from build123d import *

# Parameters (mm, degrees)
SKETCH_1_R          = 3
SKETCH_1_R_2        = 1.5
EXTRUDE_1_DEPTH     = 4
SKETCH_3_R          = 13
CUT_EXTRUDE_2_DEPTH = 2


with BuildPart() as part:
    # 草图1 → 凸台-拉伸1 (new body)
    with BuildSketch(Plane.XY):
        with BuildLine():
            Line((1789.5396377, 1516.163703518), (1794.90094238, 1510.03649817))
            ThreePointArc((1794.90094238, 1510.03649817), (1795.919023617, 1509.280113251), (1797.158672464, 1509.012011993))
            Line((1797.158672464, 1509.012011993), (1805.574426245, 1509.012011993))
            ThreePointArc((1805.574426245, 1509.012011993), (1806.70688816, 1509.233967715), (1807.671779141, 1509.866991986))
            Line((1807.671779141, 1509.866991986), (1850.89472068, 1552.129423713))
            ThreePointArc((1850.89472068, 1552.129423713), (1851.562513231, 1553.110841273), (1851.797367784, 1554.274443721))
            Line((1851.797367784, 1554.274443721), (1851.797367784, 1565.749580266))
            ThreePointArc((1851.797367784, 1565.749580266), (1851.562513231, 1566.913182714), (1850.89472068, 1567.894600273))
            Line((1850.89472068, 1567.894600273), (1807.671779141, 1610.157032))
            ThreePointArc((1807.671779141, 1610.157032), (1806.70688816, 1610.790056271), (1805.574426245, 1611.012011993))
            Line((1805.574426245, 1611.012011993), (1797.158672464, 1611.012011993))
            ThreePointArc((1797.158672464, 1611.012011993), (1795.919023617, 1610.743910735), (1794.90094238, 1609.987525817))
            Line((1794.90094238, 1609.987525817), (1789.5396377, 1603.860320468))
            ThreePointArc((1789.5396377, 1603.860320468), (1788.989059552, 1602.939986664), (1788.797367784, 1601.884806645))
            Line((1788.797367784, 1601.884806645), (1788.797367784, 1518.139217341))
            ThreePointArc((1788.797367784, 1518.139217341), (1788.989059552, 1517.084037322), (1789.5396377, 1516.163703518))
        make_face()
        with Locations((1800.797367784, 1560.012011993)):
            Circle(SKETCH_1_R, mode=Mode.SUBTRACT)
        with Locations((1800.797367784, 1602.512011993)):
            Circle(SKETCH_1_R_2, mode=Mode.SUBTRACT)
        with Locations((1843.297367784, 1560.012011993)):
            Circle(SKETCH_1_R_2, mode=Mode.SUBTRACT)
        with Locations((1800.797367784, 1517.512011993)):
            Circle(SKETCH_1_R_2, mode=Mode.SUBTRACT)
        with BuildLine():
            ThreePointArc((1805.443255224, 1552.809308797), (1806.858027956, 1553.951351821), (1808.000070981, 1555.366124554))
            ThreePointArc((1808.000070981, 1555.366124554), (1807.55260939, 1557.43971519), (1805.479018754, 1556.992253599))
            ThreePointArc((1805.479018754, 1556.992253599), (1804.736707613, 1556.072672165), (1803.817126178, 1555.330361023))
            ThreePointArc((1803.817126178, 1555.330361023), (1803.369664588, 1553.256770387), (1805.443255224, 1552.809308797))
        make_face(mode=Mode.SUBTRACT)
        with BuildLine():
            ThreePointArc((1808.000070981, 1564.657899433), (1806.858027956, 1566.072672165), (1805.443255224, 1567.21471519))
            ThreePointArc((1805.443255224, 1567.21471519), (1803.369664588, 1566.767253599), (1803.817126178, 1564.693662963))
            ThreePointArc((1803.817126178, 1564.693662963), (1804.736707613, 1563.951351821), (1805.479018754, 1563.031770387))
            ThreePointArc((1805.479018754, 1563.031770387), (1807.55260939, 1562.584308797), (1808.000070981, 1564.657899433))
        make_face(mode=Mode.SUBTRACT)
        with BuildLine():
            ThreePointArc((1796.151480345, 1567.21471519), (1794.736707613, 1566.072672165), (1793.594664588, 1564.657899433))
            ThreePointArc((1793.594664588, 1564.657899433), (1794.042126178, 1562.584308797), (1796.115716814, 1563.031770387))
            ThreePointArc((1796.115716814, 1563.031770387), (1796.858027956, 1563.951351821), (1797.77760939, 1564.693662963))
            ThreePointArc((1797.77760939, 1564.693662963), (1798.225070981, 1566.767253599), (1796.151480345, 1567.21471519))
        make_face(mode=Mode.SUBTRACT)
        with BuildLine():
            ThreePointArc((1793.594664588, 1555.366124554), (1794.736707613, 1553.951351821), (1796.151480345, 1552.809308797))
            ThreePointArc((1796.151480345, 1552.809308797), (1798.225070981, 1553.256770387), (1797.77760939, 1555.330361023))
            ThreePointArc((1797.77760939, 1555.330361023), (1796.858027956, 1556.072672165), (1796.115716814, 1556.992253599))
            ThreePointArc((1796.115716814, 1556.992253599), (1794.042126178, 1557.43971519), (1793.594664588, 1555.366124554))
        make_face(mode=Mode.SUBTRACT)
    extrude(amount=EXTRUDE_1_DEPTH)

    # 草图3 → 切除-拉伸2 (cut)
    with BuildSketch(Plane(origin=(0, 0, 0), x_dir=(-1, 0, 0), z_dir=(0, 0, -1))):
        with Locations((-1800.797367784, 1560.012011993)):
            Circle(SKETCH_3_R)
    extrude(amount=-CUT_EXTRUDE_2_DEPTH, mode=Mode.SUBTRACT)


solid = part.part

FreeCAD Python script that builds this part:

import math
import FreeCAD as App
import Part
import Sketcher

V = App.Vector

doc = App.newDocument("Part")
body = doc.addObject("PartDesign::Body", "Body")

# Sketch on XY plane
sketch1 = body.newObject("Sketcher::SketchObject", "Sketch")
sketch1.AttachmentSupport = (doc.getObject("XY_Plane"), [""])
sketch1.MapMode = "FlatFace"
sketch1.addGeometry(Part.LineSegment(V(1789.5, 1516.2, 0), V(1794.9, 1510, 0)), False)
sketch1.addGeometry(Part.ArcOfCircle(Part.Circle(V(1797.2, 1512, 0), V(0, 0, 1), 3), math.radians(-139), math.radians(-90)), False)
sketch1.addGeometry(Part.LineSegment(V(1797.2, 1509, 0), V(1805.6, 1509, 0)), False)
sketch1.addGeometry(Part.ArcOfCircle(Part.Circle(V(1805.6, 1512, 0), V(0, 0, 1), 3), math.radians(-90), math.radians(-46)), False)
sketch1.addGeometry(Part.LineSegment(V(1807.7, 1509.9, 0), V(1850.9, 1552.1, 0)), False)
sketch1.addGeometry(Part.ArcOfCircle(Part.Circle(V(1848.8, 1554.3, 0), V(0, 0, 1), 3), math.radians(-46), math.radians(0)), False)
sketch1.addGeometry(Part.LineSegment(V(1851.8, 1554.3, 0), V(1851.8, 1565.7, 0)), False)
sketch1.addGeometry(Part.ArcOfCircle(Part.Circle(V(1848.8, 1565.7, 0), V(0, 0, 1), 3), math.radians(0), math.radians(46)), False)
sketch1.addGeometry(Part.LineSegment(V(1850.9, 1567.9, 0), V(1807.7, 1610.2, 0)), False)
sketch1.addGeometry(Part.ArcOfCircle(Part.Circle(V(1805.6, 1608, 0), V(0, 0, 1), 3), math.radians(46), math.radians(90)), False)
sketch1.addGeometry(Part.LineSegment(V(1805.6, 1611, 0), V(1797.2, 1611, 0)), False)
sketch1.addGeometry(Part.ArcOfCircle(Part.Circle(V(1797.2, 1608, 0), V(0, 0, 1), 3), math.radians(90), math.radians(139)), False)
sketch1.addGeometry(Part.LineSegment(V(1794.9, 1610, 0), V(1789.5, 1603.9, 0)), False)
sketch1.addGeometry(Part.ArcOfCircle(Part.Circle(V(1791.8, 1601.9, 0), V(0, 0, 1), 3), math.radians(139), math.radians(180)), False)
sketch1.addGeometry(Part.LineSegment(V(1788.8, 1601.9, 0), V(1788.8, 1518.1, 0)), False)
sketch1.addGeometry(Part.ArcOfCircle(Part.Circle(V(1791.8, 1518.1, 0), V(0, 0, 1), 3), math.radians(-180), math.radians(-139)), False)
sketch1.addGeometry(Part.Circle(V(1800.8, 1517.5, 0), V(0, 0, 1), 1.5), False)
sketch1.addGeometry(Part.ArcOfCircle(Part.Circle(V(1800.8, 1560, 0), V(0, 0, 1), 8.6), math.radians(-147), math.radians(-123)), False)
sketch1.addGeometry(Part.ArcOfCircle(Part.Circle(V(1794.9, 1556.2, 0), V(0, 0, 1), 1.5), math.radians(33), math.radians(213)), False)
sketch1.addGeometry(Part.ArcOfCircle(Part.Circle(V(1800.8, 1560, 0), V(0, 0, 1), 5.6), math.radians(-147), math.radians(-123)), False)
sketch1.addGeometry(Part.ArcOfCircle(Part.Circle(V(1797, 1554.1, 0), V(0, 0, 1), 1.5), math.radians(-123), math.radians(57)), False)
sketch1.addGeometry(Part.ArcOfCircle(Part.Circle(V(1800.8, 1560, 0), V(0, 0, 1), 8.6), math.radians(-57), math.radians(-33)), False)
sketch1.addGeometry(Part.ArcOfCircle(Part.Circle(V(1804.6, 1554.1, 0), V(0, 0, 1), 1.5), math.radians(123), math.radians(303)), False)
sketch1.addGeometry(Part.ArcOfCircle(Part.Circle(V(1800.8, 1560, 0), V(0, 0, 1), 5.6), math.radians(-57), math.radians(-33)), False)
sketch1.addGeometry(Part.ArcOfCircle(Part.Circle(V(1806.7, 1556.2, 0), V(0, 0, 1), 1.5), math.radians(-33), math.radians(147)), False)
sketch1.addGeometry(Part.ArcOfCircle(Part.Circle(V(1800.8, 1560, 0), V(0, 0, 1), 8.6), math.radians(123), math.radians(147)), False)
sketch1.addGeometry(Part.ArcOfCircle(Part.Circle(V(1797, 1566, 0), V(0, 0, 1), 1.5), math.radians(-57), math.radians(123)), False)
sketch1.addGeometry(Part.ArcOfCircle(Part.Circle(V(1800.8, 1560, 0), V(0, 0, 1), 5.6), math.radians(123), math.radians(147)), False)
sketch1.addGeometry(Part.ArcOfCircle(Part.Circle(V(1794.9, 1563.8, 0), V(0, 0, 1), 1.5), math.radians(147), math.radians(327)), False)
sketch1.addGeometry(Part.Circle(V(1800.8, 1560, 0), V(0, 0, 1), 3), False)
sketch1.addGeometry(Part.ArcOfCircle(Part.Circle(V(1800.8, 1560, 0), V(0, 0, 1), 8.6), math.radians(33), math.radians(57)), False)
sketch1.addGeometry(Part.ArcOfCircle(Part.Circle(V(1806.7, 1563.8, 0), V(0, 0, 1), 1.5), math.radians(-147), math.radians(33)), False)
sketch1.addGeometry(Part.ArcOfCircle(Part.Circle(V(1800.8, 1560, 0), V(0, 0, 1), 5.6), math.radians(33), math.radians(57)), False)
sketch1.addGeometry(Part.ArcOfCircle(Part.Circle(V(1804.6, 1566, 0), V(0, 0, 1), 1.5), math.radians(57), math.radians(237)), False)
sketch1.addGeometry(Part.Circle(V(1800.8, 1602.5, 0), V(0, 0, 1), 1.5), False)
sketch1.addGeometry(Part.Circle(V(1843.3, 1560, 0), V(0, 0, 1), 1.5), False)
sketch1.addConstraint(Sketcher.Constraint("Tangent", 0, 2, 1, 1))
sketch1.addConstraint(Sketcher.Constraint("Tangent", 1, 2, 2, 1))
sketch1.addConstraint(Sketcher.Constraint("Tangent", 2, 2, 3, 1))
sketch1.addConstraint(Sketcher.Constraint("Tangent", 3, 2, 4, 1))
sketch1.addConstraint(Sketcher.Constraint("Tangent", 4, 2, 5, 1))
sketch1.addConstraint(Sketcher.Constraint("Tangent", 5, 2, 6, 1))
sketch1.addConstraint(Sketcher.Constraint("Tangent", 6, 2, 7, 1))
sketch1.addConstraint(Sketcher.Constraint("Tangent", 7, 2, 8, 1))
sketch1.addConstraint(Sketcher.Constraint("Tangent", 8, 2, 9, 1))
sketch1.addConstraint(Sketcher.Constraint("Tangent", 9, 2, 10, 1))
sketch1.addConstraint(Sketcher.Constraint("Tangent", 10, 2, 11, 1))
sketch1.addConstraint(Sketcher.Constraint("Tangent", 11, 2, 12, 1))
sketch1.addConstraint(Sketcher.Constraint("Tangent", 12, 2, 13, 1))
sketch1.addConstraint(Sketcher.Constraint("Tangent", 13, 2, 14, 1))
sketch1.addConstraint(Sketcher.Constraint("Tangent", 14, 2, 15, 1))
sketch1.addConstraint(Sketcher.Constraint("Tangent", 15, 2, 0, 1))
sketch1.addConstraint(Sketcher.Constraint("Tangent", 17, 1, 18, 2))
sketch1.addConstraint(Sketcher.Constraint("Tangent", 18, 1, 19, 1))
sketch1.addConstraint(Sketcher.Constraint("Tangent", 19, 2, 20, 2))
sketch1.addConstraint(Sketcher.Constraint("Tangent", 20, 1, 17, 2))
sketch1.addConstraint(Sketcher.Constraint("Tangent", 21, 1, 22, 2))
sketch1.addConstraint(Sketcher.Constraint("Tangent", 22, 1, 23, 1))
sketch1.addConstraint(Sketcher.Constraint("Tangent", 23, 2, 24, 2))
sketch1.addConstraint(Sketcher.Constraint("Tangent", 24, 1, 21, 2))
sketch1.addConstraint(Sketcher.Constraint("Tangent", 25, 1, 26, 2))
sketch1.addConstraint(Sketcher.Constraint("Tangent", 26, 1, 27, 1))
sketch1.addConstraint(Sketcher.Constraint("Tangent", 27, 2, 28, 2))
sketch1.addConstraint(Sketcher.Constraint("Tangent", 28, 1, 25, 2))
sketch1.addConstraint(Sketcher.Constraint("Tangent", 30, 1, 31, 2))
sketch1.addConstraint(Sketcher.Constraint("Tangent", 31, 1, 32, 1))
sketch1.addConstraint(Sketcher.Constraint("Tangent", 32, 2, 33, 2))
sketch1.addConstraint(Sketcher.Constraint("Tangent", 33, 1, 30, 2))
sketch1.addConstraint(Sketcher.Constraint("Horizontal", 2))
sketch1.addConstraint(Sketcher.Constraint("Vertical", 6))
sketch1.addConstraint(Sketcher.Constraint("Horizontal", 10))
sketch1.addConstraint(Sketcher.Constraint("Vertical", 14))
sketch1.addConstraint(Sketcher.Constraint("Coincident", 19, 3, 17, 3))
sketch1.addConstraint(Sketcher.Constraint("Coincident", 21, 3, 17, 3))
sketch1.addConstraint(Sketcher.Constraint("Coincident", 23, 3, 17, 3))
sketch1.addConstraint(Sketcher.Constraint("Coincident", 25, 3, 17, 3))
sketch1.addConstraint(Sketcher.Constraint("Coincident", 27, 3, 17, 3))
sketch1.addConstraint(Sketcher.Constraint("Coincident", 29, 3, 17, 3))
sketch1.addConstraint(Sketcher.Constraint("Coincident", 30, 3, 17, 3))
sketch1.addConstraint(Sketcher.Constraint("Coincident", 32, 3, 17, 3))
sketch1.addConstraint(Sketcher.Constraint("Equal", 1, 3))
sketch1.addConstraint(Sketcher.Constraint("Equal", 3, 5))
sketch1.addConstraint(Sketcher.Constraint("Equal", 5, 7))
sketch1.addConstraint(Sketcher.Constraint("Equal", 7, 9))
sketch1.addConstraint(Sketcher.Constraint("Equal", 9, 11))
sketch1.addConstraint(Sketcher.Constraint("Equal", 11, 13))
sketch1.addConstraint(Sketcher.Constraint("Equal", 13, 15))
sketch1.addConstraint(Sketcher.Constraint("Equal", 16, 18))
sketch1.addConstraint(Sketcher.Constraint("Equal", 17, 21))
sketch1.addConstraint(Sketcher.Constraint("Equal", 20, 22))
sketch1.addConstraint(Sketcher.Constraint("Equal", 21, 25))
sketch1.addConstraint(Sketcher.Constraint("Equal", 24, 26))
sketch1.addConstraint(Sketcher.Constraint("Equal", 15, 29))
sketch1.addConstraint(Sketcher.Constraint("Equal", 25, 30))
sketch1.addConstraint(Sketcher.Constraint("Equal", 28, 31))
sketch1.addConstraint(Sketcher.Constraint("Equal", 33, 34))
sketch1.addConstraint(Sketcher.Constraint("Equal", 34, 35))
sketch1.addConstraint(Sketcher.Constraint("Horizontal", 20, 3, 22, 3))
sketch1.addConstraint(Sketcher.Constraint("Horizontal", 18, 3, 24, 3))
sketch1.addConstraint(Sketcher.Constraint("Horizontal", 28, 3, 31, 3))
sketch1.addConstraint(Sketcher.Constraint("Horizontal", 26, 3, 33, 3))
sketch1.addConstraint(Sketcher.Constraint("Horizontal", 32, 3, 35, 3))
sketch1.addConstraint(Sketcher.Constraint("Vertical", 3, 3, 9, 3))
sketch1.addConstraint(Sketcher.Constraint("Vertical", 1, 3, 11, 3))
sketch1.addConstraint(Sketcher.Constraint("Vertical", 16, 3, 17, 3))
sketch1.addConstraint(Sketcher.Constraint("Vertical", 20, 3, 26, 3))
sketch1.addConstraint(Sketcher.Constraint("Vertical", 18, 3, 28, 3))
sketch1.addConstraint(Sketcher.Constraint("Vertical", 32, 3, 34, 3))
sketch1.addConstraint(Sketcher.Constraint("Vertical", 4, 2, 7, 2))
sketch1.addConstraint(Sketcher.Constraint("Vertical", 0, 2, 11, 2))
sketch1.addConstraint(Sketcher.Constraint("Diameter", 16, 3.0))
sketch1.addConstraint(Sketcher.Constraint("Diameter", 29, 6.0))
sketch1.addConstraint(Sketcher.Constraint("DistanceY", 3, 3, 9, 3, 96.0))
sketch1.addConstraint(Sketcher.Constraint("DistanceX", 13, 3, 7, 3, 57.0))
sketch1.addConstraint(Sketcher.Constraint("DistanceX", 15, 3, 16, 3, 9.0))
sketch1.addConstraint(Sketcher.Constraint("DistanceY", 1, 3, 17, 3, 48.0))
sketch1.addConstraint(Sketcher.Constraint("DistanceY", 1, 3, 16, 3, 5.5))
sketch1.addConstraint(Sketcher.Constraint("DistanceY", 34, 3, 11, 3, 5.5))
sketch1.addConstraint(Sketcher.Constraint("DistanceX", 35, 3, 5, 3, 5.5))
sketch1.addConstraint(Sketcher.Constraint("Radius", 17, 8.571068))
sketch1.addConstraint(Sketcher.Constraint("DistanceX", 18, 3, 22, 3, 9.775))
sketch1.addConstraint(Sketcher.Constraint("DistanceY", 14, 2, 14, 1, 83.745589))
sketch1.addConstraint(Sketcher.Constraint("DistanceY", -1, 1, 0, 2, 1510.036498))
sketch1.addConstraint(Sketcher.Constraint("DistanceY", -1, 1, 7, 2, 1567.8946))
sketch1.addConstraint(Sketcher.Constraint("DistanceY", -1, 1, 28, 1, 1564.657899))
sketch1.addConstraint(Sketcher.Constraint("DistanceX", 2, 1, 2, 2, 8.415754))
sketch1.addConstraint(Sketcher.Constraint("DistanceY", 6, 1, 6, 2, 11.475137))
sketch1.addConstraint(Sketcher.Constraint("DistanceX", -1, 1, 18, 3, 1794.855191))
pad1 = body.newObject("PartDesign::Pad", "Pad")
pad1.Profile = sketch1
pad1.Length = 4

# Sketch on XY plane
sketch2 = body.newObject("Sketcher::SketchObject", "Sketch001")
sketch2.AttachmentSupport = (doc.getObject("XY_Plane"), [""])
sketch2.MapMode = "FlatFace"
sketch2.addGeometry(Part.Circle(V(1801, 1560, 0), V(0, 0, 1), 13), False)
sketch2.addConstraint(Sketcher.Constraint("Diameter", 0, 26.0))
sketch2.addConstraint(Sketcher.Constraint("DistanceY", -1, 1, 0, 3, 1560.012012))
sketch2.addConstraint(Sketcher.Constraint("DistanceX", -1, 1, 0, 3, 1800.797368))
pocket1 = body.newObject("PartDesign::Pocket", "Pocket")
pocket1.Profile = sketch2
pocket1.Length = 2
pocket1.Reversed = True

doc.recompute()
